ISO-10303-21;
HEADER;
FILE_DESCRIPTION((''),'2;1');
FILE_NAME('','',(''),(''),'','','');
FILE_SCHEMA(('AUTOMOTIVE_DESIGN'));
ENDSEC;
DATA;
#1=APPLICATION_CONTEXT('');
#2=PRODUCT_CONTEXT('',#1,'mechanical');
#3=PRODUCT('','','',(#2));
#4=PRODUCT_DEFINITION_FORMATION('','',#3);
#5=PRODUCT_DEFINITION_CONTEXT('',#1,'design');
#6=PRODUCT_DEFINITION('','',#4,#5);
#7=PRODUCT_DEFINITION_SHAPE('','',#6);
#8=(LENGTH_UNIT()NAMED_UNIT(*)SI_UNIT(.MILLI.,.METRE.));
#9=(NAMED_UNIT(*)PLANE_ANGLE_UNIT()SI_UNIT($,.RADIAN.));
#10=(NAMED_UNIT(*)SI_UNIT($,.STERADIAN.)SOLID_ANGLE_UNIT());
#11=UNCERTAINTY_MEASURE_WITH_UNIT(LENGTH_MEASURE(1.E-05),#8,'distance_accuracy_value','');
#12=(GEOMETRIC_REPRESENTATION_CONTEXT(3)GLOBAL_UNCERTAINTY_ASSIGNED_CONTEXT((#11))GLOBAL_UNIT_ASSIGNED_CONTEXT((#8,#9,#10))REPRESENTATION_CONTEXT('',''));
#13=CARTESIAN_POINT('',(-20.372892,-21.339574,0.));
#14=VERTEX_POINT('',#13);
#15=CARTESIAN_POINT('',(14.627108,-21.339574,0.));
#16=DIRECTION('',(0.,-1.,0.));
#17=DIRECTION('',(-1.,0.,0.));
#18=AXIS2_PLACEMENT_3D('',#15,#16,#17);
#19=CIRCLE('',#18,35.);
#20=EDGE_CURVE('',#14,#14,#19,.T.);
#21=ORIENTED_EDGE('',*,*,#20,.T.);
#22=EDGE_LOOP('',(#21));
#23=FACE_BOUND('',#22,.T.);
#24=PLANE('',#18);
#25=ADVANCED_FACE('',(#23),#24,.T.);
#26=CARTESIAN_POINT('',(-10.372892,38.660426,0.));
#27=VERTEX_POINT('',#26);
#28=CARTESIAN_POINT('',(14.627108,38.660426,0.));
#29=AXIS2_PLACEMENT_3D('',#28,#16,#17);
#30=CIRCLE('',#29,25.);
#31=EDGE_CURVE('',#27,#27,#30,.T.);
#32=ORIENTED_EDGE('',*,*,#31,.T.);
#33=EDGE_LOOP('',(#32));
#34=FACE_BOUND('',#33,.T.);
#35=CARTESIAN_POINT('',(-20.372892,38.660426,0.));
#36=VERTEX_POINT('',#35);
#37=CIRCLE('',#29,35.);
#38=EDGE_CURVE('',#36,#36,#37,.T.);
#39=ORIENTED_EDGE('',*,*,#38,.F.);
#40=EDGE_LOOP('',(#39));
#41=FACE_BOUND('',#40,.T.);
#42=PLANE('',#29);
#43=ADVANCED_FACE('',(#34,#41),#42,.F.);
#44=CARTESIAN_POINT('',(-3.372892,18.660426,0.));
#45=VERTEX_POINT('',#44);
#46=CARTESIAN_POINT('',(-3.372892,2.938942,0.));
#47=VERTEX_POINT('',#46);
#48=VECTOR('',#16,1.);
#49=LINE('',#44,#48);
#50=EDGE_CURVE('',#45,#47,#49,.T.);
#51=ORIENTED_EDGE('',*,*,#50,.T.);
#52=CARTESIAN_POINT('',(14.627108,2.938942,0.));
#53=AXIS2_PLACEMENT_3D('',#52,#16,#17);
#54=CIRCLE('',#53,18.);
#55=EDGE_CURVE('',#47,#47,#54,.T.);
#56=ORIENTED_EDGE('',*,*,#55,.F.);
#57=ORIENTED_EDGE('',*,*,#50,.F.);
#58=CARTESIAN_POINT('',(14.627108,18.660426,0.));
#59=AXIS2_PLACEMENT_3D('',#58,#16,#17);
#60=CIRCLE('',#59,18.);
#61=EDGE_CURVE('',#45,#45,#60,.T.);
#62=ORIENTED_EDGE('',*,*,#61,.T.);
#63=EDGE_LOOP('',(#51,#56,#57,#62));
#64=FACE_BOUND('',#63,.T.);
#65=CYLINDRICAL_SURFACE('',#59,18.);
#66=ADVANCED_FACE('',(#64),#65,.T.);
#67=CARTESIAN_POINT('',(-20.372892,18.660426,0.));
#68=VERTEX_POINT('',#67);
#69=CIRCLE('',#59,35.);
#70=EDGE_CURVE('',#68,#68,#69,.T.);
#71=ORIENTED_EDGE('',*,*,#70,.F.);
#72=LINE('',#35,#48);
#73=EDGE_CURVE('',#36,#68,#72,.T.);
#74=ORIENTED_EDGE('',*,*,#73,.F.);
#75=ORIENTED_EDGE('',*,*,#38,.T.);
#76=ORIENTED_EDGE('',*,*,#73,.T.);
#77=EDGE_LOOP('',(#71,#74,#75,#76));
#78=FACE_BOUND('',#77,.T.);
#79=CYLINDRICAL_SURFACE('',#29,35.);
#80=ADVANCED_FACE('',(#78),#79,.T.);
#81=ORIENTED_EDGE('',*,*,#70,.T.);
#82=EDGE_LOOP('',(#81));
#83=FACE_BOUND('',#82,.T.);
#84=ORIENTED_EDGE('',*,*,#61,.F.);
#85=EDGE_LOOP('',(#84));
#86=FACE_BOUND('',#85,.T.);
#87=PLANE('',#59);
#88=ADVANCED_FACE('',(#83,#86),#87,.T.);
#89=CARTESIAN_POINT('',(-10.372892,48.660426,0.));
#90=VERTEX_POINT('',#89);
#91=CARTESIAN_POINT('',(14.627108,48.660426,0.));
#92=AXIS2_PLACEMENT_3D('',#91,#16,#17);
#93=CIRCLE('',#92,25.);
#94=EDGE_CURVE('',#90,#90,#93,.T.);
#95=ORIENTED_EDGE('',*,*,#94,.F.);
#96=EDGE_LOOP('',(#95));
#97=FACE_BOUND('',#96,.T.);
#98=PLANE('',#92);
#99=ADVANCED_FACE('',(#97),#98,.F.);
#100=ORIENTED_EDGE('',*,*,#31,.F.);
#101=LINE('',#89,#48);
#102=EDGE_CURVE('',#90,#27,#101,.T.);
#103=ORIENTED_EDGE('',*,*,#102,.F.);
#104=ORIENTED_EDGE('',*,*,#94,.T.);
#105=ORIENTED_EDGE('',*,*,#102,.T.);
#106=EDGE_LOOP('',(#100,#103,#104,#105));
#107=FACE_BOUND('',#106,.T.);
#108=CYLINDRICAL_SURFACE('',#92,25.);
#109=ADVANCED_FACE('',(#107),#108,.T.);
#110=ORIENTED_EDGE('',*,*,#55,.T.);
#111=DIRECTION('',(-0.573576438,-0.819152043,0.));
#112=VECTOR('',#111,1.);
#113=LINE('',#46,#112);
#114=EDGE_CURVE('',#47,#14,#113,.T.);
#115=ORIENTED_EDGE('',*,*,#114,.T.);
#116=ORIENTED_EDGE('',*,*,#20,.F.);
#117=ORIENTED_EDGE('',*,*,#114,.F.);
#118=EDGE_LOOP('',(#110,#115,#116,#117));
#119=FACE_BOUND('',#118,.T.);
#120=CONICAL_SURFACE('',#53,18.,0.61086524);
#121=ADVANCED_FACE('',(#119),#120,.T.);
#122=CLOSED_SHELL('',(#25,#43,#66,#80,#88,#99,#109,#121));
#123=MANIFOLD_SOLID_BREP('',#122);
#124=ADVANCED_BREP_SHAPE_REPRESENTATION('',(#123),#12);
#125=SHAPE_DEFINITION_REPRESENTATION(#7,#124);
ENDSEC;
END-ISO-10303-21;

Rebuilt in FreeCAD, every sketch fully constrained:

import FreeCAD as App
import Part
import Sketcher
from FreeCAD import Vector
Q = App.Units.Quantity


def add_polygon(sketch, points):
    """Adds a closed chain of lines whose ends are joined by coincident constraints."""
    first, n = sketch.GeometryCount, len(points)
    for a, b in zip(points, points[1:] + points[:1]):
        sketch.addGeometry(Part.LineSegment(App.Vector(*a, 0), App.Vector(*b, 0)), False)
    for i in range(n):
        sketch.addConstraint(Sketcher.Constraint("Coincident", first + i, 2, first + (i + 1) % n, 1))

doc = App.newDocument("Part")
body = doc.addObject("PartDesign::Body", "Body")

# Sketch on XY plane
sketch1 = body.newObject("Sketcher::SketchObject", "Sketch")
sketch1.AttachmentSupport = (doc.getObject("XY_Plane"), [""])
sketch1.MapMode = "FlatFace"
add_polygon(sketch1, [(-20.372892, -21.339574), (14.627108, -21.339574), (14.627108, 48.660426), (-10.372892, 48.660426), (-10.372892, 38.660426), (-20.372892, 38.660426), (-20.372892, 18.660426), (-3.372892, 18.660426), (-3.372892, 2.938942)])  # lines 0-8
sketch1.addGeometry(Part.LineSegment(Vector(14.627108, 48.660426, 0), Vector(14.627108, -21.339574, 0)), True)  # axis
sketch1.addConstraint([
    Sketcher.Constraint("Horizontal", 0),
    Sketcher.Constraint("Vertical", 1),
    Sketcher.Constraint("Horizontal", 2),
    Sketcher.Constraint("Vertical", 3),
    Sketcher.Constraint("Horizontal", 4),
    Sketcher.Constraint("Vertical", 5),
    Sketcher.Constraint("Horizontal", 6),
    Sketcher.Constraint("Vertical", 7),
    Sketcher.Constraint("Vertical", 9),
    Sketcher.Constraint("Coincident", 9, 1, 1, 2),
    Sketcher.Constraint("Horizontal", 8, 2, 9, 2),
    Sketcher.Constraint("Vertical", 5, 2, 8, 2),
    Sketcher.Constraint("Equal", 4, 3),
    Sketcher.Constraint("DistanceX", 0, 1, 0, 2, 35.0),
    Sketcher.Constraint("DistanceX", 2, 2, 2, 1, 25.0),
    Sketcher.Constraint("DistanceX", 6, 1, 6, 2, 17.0),
    Sketcher.Constraint("DistanceY", 1, 1, 1, 2, 70.0),
    Sketcher.Constraint("DistanceY", 5, 2, 5, 1, 20.0),
    Sketcher.Constraint("Angle", 8, Q("-125 deg")),
    Sketcher.Constraint("DistanceX", 4, 2, -1, 1, 20.372892),
    Sketcher.Constraint("DistanceY", -1, 1, 7, 2, 2.938942),
])
revolution = body.newObject("PartDesign::Revolution", "Revolution")
revolution.Profile = sketch1
revolution.ReferenceAxis = (sketch1, ["Axis0"])
revolution.Angle = 360

doc.recompute()
